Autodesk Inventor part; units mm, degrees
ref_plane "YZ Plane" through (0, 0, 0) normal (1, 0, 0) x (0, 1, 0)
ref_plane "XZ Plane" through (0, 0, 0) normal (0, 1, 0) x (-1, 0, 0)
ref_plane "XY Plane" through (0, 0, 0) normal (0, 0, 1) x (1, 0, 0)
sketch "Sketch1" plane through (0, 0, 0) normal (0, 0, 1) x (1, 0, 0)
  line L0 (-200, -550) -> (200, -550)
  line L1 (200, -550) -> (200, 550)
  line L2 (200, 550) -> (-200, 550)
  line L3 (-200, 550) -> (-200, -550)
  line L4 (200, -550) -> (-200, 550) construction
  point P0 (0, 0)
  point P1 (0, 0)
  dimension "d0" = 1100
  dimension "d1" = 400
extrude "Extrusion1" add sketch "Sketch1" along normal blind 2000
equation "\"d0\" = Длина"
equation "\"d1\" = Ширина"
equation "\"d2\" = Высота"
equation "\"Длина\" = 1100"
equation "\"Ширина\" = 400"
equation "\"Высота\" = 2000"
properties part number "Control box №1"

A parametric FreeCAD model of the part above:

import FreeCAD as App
import Part
import Sketcher
Q = App.Units.Quantity

doc = App.newDocument("Part")
body = doc.addObject("PartDesign::Body", "Body")

# Sketch on XY plane
sketch1 = body.newObject("Sketcher::SketchObject", "Sketch")
sketch1.AttachmentSupport = (doc.getObject("XY_Plane"), [""])
sketch1.MapMode = "FlatFace"
sketch1.addGeometry([
    Part.LineSegment(App.Vector(-200, 550, 0), App.Vector(-200, -550, 0)),
    Part.LineSegment(App.Vector(-200, -550, 0), App.Vector(200, -550, 0)),
    Part.LineSegment(App.Vector(200, -550, 0), App.Vector(200, 550, 0)),
    Part.LineSegment(App.Vector(200, 550, 0), App.Vector(-200, 550, 0)),
], False)
sketch1.addConstraint([
    Sketcher.Constraint("Coincident", 0, 2, 1, 1),
    Sketcher.Constraint("Coincident", 1, 2, 2, 1),
    Sketcher.Constraint("Coincident", 2, 2, 3, 1),
    Sketcher.Constraint("Coincident", 3, 2, 0, 1),
    Sketcher.Constraint("Vertical", 0),
    Sketcher.Constraint("Horizontal", 1),
    Sketcher.Constraint("Vertical", 2),
    Sketcher.Constraint("Horizontal", 3),
    Sketcher.Constraint("Symmetric", 0, 2, 2, 2, -1, 1),
    Sketcher.Constraint("DistanceX", 1, 1, 1, 2, Q("400 mm")),
    Sketcher.Constraint("DistanceY", 0, 2, 0, 1, Q("1100 mm")),
])
pad1 = body.newObject("PartDesign::Pad", "Pad")
pad1.Profile = sketch1
pad1.Length = 2000

doc.recompute()
